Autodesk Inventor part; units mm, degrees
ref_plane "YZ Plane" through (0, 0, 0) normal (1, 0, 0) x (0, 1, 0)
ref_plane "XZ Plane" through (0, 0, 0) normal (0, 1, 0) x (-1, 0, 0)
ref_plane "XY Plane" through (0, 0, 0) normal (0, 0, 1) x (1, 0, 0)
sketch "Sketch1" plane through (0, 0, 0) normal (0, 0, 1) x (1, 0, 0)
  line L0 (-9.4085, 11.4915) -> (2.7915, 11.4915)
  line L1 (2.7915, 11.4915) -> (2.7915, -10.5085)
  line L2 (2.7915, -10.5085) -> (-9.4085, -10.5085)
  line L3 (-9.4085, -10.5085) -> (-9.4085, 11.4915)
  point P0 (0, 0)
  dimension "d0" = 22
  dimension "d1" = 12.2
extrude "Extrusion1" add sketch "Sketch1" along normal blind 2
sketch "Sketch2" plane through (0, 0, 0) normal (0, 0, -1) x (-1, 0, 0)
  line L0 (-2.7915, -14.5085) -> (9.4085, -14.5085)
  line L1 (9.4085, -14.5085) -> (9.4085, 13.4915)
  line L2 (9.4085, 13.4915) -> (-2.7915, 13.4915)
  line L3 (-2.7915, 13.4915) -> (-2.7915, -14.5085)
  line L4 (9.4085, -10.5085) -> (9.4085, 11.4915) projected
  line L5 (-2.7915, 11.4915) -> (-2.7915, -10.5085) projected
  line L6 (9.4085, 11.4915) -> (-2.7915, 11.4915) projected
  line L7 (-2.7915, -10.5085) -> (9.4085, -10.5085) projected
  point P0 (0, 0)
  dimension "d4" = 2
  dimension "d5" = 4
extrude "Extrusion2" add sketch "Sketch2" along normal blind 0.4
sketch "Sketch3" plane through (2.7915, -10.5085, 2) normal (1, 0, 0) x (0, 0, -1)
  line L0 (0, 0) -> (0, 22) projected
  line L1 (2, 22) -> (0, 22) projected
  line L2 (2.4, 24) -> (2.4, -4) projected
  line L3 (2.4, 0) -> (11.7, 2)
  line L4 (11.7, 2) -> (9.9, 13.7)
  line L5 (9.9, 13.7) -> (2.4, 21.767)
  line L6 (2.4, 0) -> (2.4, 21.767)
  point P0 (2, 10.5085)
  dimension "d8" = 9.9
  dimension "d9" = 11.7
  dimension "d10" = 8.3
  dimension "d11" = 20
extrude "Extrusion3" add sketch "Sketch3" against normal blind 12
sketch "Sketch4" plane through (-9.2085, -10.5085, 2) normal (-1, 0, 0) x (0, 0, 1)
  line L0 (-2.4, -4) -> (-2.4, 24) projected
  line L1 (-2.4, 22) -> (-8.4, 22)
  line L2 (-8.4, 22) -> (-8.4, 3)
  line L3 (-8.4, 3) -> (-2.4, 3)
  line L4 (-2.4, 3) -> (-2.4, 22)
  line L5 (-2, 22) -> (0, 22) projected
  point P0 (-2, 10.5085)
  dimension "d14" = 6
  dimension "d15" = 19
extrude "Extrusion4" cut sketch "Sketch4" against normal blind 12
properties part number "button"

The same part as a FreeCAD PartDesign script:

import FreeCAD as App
import Part
import Sketcher

V = App.Vector
Q = App.Units.Quantity


def add_polygon(sketch, points):
    """Adds a closed chain of lines whose ends are joined by coincident constraints."""
    first, n = sketch.GeometryCount, len(points)
    for a, b in zip(points, points[1:] + points[:1]):
        sketch.addGeometry(Part.LineSegment(App.Vector(*a, 0), App.Vector(*b, 0)), False)
    for i in range(n):
        sketch.addConstraint(Sketcher.Constraint("Coincident", first + i, 2, first + (i + 1) % n, 1))

doc = App.newDocument("Part")
params = doc.addObject("Spreadsheet::Sheet", "Params")
for row, (alias, value) in enumerate([
    ("sketch1_height", "22 mm"),
    ("sketch1_width", "12.2 mm"),
    ("pad1_length", "2 mm"),
    ("sketch2_height", "28 mm"),
    ("sketch2_width", "12.2 mm"),
    ("pad2_length", "0.4 mm"),
    ("pad3_length", "12 mm"),
    ("sketch4_width", "19 mm"),
    ("sketch4_height", "6 mm"),
    ("pocket1_length", "12 mm"),
], start=1):
    params.set(f"A{row}", alias)
    params.set(f"B{row}", "=" + value)
    params.setAlias(f"B{row}", alias)

body = doc.addObject("PartDesign::Body", "Body")

# Sketch on XY plane
sketch1 = body.newObject("Sketcher::SketchObject", "Sketch")
sketch1.AttachmentSupport = (doc.getObject("XY_Plane"), [""])
sketch1.MapMode = "FlatFace"
add_polygon(sketch1, [(3, 11), (-9, 11), (-9, -11), (3, -11)])  # lines 0-3
sketch1.addConstraint(Sketcher.Constraint("Horizontal", 0))
sketch1.addConstraint(Sketcher.Constraint("Vertical", 1))
sketch1.addConstraint(Sketcher.Constraint("Horizontal", 2))
sketch1.addConstraint(Sketcher.Constraint("Vertical", 3))
sketch1.addConstraint(Sketcher.Constraint("DistanceY", 1, 2, 1, 1, Q("22 mm")))
sketch1.addConstraint(Sketcher.Constraint("DistanceX", 0, 2, 0, 1, Q("12.2 mm")))
sketch1.addConstraint(Sketcher.Constraint("DistanceX", 0, 2, -1, 1, Q("9.4085 mm")))
sketch1.addConstraint(Sketcher.Constraint("DistanceY", -1, 1, 0, 2, Q("11.4915 mm")))
sketch1.setExpression("Constraints[8]", "Params.sketch1_height")
sketch1.setExpression("Constraints[9]", "Params.sketch1_width")
pad1 = body.newObject("PartDesign::Pad", "Pad")
pad1.Profile = sketch1
pad1.setExpression("Length", "Params.pad1_length")

# Sketch on XY plane
sketch2 = body.newObject("Sketcher::SketchObject", "Sketch001")
sketch2.AttachmentSupport = (doc.getObject("XY_Plane"), [""])
sketch2.MapMode = "FlatFace"
add_polygon(sketch2, [(3, -15), (-9, -15), (-9, 13), (3, 13)])  # lines 0-3
sketch2.addConstraint(Sketcher.Constraint("Horizontal", 0))
sketch2.addConstraint(Sketcher.Constraint("Vertical", 1))
sketch2.addConstraint(Sketcher.Constraint("Horizontal", 2))
sketch2.addConstraint(Sketcher.Constraint("Vertical", 3))
sketch2.addConstraint(Sketcher.Constraint("DistanceY", 1, 1, 1, 2, Q("28 mm")))
sketch2.addConstraint(Sketcher.Constraint("DistanceX", 0, 2, 0, 1, Q("12.2 mm")))
sketch2.addConstraint(Sketcher.Constraint("DistanceX", 0, 2, -1, 1, Q("9.4085 mm")))
sketch2.addConstraint(Sketcher.Constraint("DistanceY", 0, 2, -1, 1, Q("14.5085 mm")))
sketch2.setExpression("Constraints[8]", "Params.sketch2_height")
sketch2.setExpression("Constraints[9]", "Params.sketch2_width")
pad2 = body.newObject("PartDesign::Pad", "Pad001")
pad2.Profile = sketch2
pad2.setExpression("Length", "Params.pad2_length")
pad2.Reversed = True

# Sketch on YZ plane
sketch3 = body.newObject("Sketcher::SketchObject", "Sketch002")
sketch3.AttachmentSupport = (doc.getObject("YZ_Plane"), [""])
sketch3.MapMode = "FlatFace"
sketch3.AttachmentOffset = App.Placement(V(0, 0, 2.7915), App.Rotation())
add_polygon(sketch3, [(3, -8), (11, 0), (-11, 0), (-9, -10)])  # lines 0-3
sketch3.addConstraint(Sketcher.Constraint("Horizontal", 1))
sketch3.addConstraint(Sketcher.Constraint("DistanceX", 2, 2, 3, 2, Q("11.7 mm")))
sketch3.addConstraint(Sketcher.Constraint("DistanceX", 1, 2, 2, 2, Q("2 mm")))
sketch3.addConstraint(Sketcher.Constraint("DistanceY", 0, 2, -1, 1, Q("0.4 mm")))
sketch3.addConstraint(Sketcher.Constraint("DistanceY", 2, 2, -1, 1, Q("9.7 mm")))
sketch3.addConstraint(Sketcher.Constraint("DistanceY", 3, 2, -1, 1, Q("7.9 mm")))
sketch3.addConstraint(Sketcher.Constraint("DistanceX", 1, 2, 1, 1, Q("21.767 mm")))
sketch3.addConstraint(Sketcher.Constraint("DistanceX", -1, 1, 0, 2, Q("11.2585 mm")))
pad3 = body.newObject("PartDesign::Pad", "Pad002")
pad3.Profile = sketch3
pad3.setExpression("Length", "Params.pad3_length")
pad3.Reversed = True

# Sketch on YZ plane
sketch4 = body.newObject("Sketcher::SketchObject", "Sketch003")
sketch4.AttachmentSupport = (doc.getObject("YZ_Plane"), [""])
sketch4.MapMode = "FlatFace"
sketch4.AttachmentOffset = App.Placement(V(0, 0, -9.2085), App.Rotation())
add_polygon(sketch4, [(-8, -6), (-8, 0), (11, 0), (11, -6)])  # lines 0-3
sketch4.addConstraint(Sketcher.Constraint("Vertical", 0))
sketch4.addConstraint(Sketcher.Constraint("Horizontal", 1))
sketch4.addConstraint(Sketcher.Constraint("Vertical", 2))
sketch4.addConstraint(Sketcher.Constraint("Horizontal", 3))
sketch4.addConstraint(Sketcher.Constraint("DistanceX", 1, 1, 1, 2, Q("19 mm")))
sketch4.addConstraint(Sketcher.Constraint("DistanceY", 0, 1, 0, 2, Q("6 mm")))
sketch4.addConstraint(Sketcher.Constraint("DistanceY", 0, 2, -1, 1, Q("0.4 mm")))
sketch4.addConstraint(Sketcher.Constraint("DistanceX", 0, 2, -1, 1, Q("7.5085 mm")))
sketch4.setExpression("Constraints[8]", "Params.sketch4_width")
sketch4.setExpression("Constraints[9]", "Params.sketch4_height")
pocket1 = body.newObject("PartDesign::Pocket", "Pocket")
pocket1.Profile = sketch4
pocket1.setExpression("Length", "Params.pocket1_length")
pocket1.Reversed = True

doc.recompute()
